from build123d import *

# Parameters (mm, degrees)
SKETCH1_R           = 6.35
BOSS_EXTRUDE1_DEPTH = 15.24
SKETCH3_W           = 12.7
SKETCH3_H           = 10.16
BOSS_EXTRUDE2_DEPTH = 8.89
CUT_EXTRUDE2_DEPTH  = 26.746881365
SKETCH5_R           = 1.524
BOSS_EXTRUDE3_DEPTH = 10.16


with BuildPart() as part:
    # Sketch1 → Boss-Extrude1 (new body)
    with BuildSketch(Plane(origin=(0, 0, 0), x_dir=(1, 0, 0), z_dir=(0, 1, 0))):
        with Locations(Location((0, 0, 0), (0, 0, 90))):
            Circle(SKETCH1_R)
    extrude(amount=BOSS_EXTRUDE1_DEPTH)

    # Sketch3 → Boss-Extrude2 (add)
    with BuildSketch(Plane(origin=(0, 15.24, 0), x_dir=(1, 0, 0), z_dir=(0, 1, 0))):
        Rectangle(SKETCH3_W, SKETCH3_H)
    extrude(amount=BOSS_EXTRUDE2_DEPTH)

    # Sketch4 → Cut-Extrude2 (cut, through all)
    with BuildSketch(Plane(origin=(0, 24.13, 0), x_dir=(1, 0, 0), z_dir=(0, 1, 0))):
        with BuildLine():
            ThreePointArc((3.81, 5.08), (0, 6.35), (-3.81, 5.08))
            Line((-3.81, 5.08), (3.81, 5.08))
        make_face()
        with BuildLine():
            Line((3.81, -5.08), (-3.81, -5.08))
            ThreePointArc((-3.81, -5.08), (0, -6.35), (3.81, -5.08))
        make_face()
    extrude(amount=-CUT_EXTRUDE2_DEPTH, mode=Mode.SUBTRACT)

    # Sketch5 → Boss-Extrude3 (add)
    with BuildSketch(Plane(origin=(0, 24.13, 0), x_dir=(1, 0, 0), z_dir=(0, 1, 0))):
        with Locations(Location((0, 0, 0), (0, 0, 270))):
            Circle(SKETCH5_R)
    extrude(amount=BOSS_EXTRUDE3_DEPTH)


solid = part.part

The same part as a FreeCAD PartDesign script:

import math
import FreeCAD as App
import Part
import Sketcher
Q = App.Units.Quantity

doc = App.newDocument("Part")
body = doc.addObject("PartDesign::Body", "Body")

sketch1 = body.newObject("Sketcher::SketchObject", "Sketch")
sketch1.AttachmentSupport = (doc.getObject("XZ_Plane"), [""])
sketch1.MapMode = "FlatFace"
sketch1.addGeometry(Part.Circle(App.Vector(0, 0, 0), App.Vector(0, 0, 1), 6), False)
sketch1.addConstraint(Sketcher.Constraint("Coincident", 0, 3, -1, 1))
sketch1.addConstraint(Sketcher.Constraint("Diameter", 0, Q("0.5 in")))
pad1 = body.newObject("PartDesign::Pad", "Pad")
pad1.Profile = sketch1
pad1.Length = Q("0.6 in")
pad1.Reversed = True

sketch2 = body.newObject("Sketcher::SketchObject", "Sketch001")
sketch2.AttachmentSupport = (doc.getObject("XZ_Plane"), [""])
sketch2.MapMode = "FlatFace"
sketch2.AttachmentOffset = App.Placement(App.Vector(0, 0, -0.6 * 25.4), App.Rotation())
sketch2.addGeometry(Part.LineSegment(App.Vector(-6, -5, 0), App.Vector(-6, 5, 0)), False)
sketch2.addGeometry(Part.LineSegment(App.Vector(-6, 5, 0), App.Vector(6, 5, 0)), False)
sketch2.addGeometry(Part.LineSegment(App.Vector(6, 5, 0), App.Vector(6, -5, 0)), False)
sketch2.addGeometry(Part.LineSegment(App.Vector(6, -5, 0), App.Vector(-6, -5, 0)), False)
sketch2.addConstraint(Sketcher.Constraint("Coincident", 0, 2, 1, 1))
sketch2.addConstraint(Sketcher.Constraint("Coincident", 1, 2, 2, 1))
sketch2.addConstraint(Sketcher.Constraint("Coincident", 2, 2, 3, 1))
sketch2.addConstraint(Sketcher.Constraint("Coincident", 3, 2, 0, 1))
sketch2.addConstraint(Sketcher.Constraint("Vertical", 0))
sketch2.addConstraint(Sketcher.Constraint("Horizontal", 1))
sketch2.addConstraint(Sketcher.Constraint("Vertical", 2))
sketch2.addConstraint(Sketcher.Constraint("Horizontal", 3))
sketch2.addConstraint(Sketcher.Constraint("Symmetric", 0, 2, 2, 2, -1, 1))
sketch2.addConstraint(Sketcher.Constraint("DistanceX", 1, 1, 1, 2, Q("0.5 in")))
sketch2.addConstraint(Sketcher.Constraint("DistanceY", 0, 1, 0, 2, Q("0.4 in")))
pad2 = body.newObject("PartDesign::Pad", "Pad001")
pad2.Profile = sketch2
pad2.Length = Q("0.35 in")
pad2.Reversed = True

sketch3 = body.newObject("Sketcher::SketchObject", "Sketch002")
sketch3.AttachmentSupport = (doc.getObject("XZ_Plane"), [""])
sketch3.MapMode = "FlatFace"
sketch3.AttachmentOffset = App.Placement(App.Vector(0, 0, -0.95 * 25.4), App.Rotation())
sketch3.addGeometry(Part.ArcOfCircle(Part.Circle(App.Vector(0, 0, 0), App.Vector(0, 0, 1), 6), math.radians(-127), math.radians(-53)), False)
sketch3.addGeometry(Part.LineSegment(App.Vector(-4, -5, 0), App.Vector(4, -5, 0)), False)
sketch3.addGeometry(Part.LineSegment(App.Vector(4, 5, 0), App.Vector(-4, 5, 0)), False)
sketch3.addGeometry(Part.ArcOfCircle(Part.Circle(App.Vector(0, 0, 0), App.Vector(0, 0, 1), 6), math.radians(53), math.radians(127)), False)
sketch3.addConstraint(Sketcher.Constraint("Coincident", 0, 1, 1, 1))
sketch3.addConstraint(Sketcher.Constraint("Coincident", 1, 2, 0, 2))
sketch3.addConstraint(Sketcher.Constraint("Coincident", 2, 1, 3, 1))
sketch3.addConstraint(Sketcher.Constraint("Coincident", 3, 2, 2, 2))
sketch3.addConstraint(Sketcher.Constraint("Horizontal", 1))
sketch3.addConstraint(Sketcher.Constraint("Horizontal", 2))
sketch3.addConstraint(Sketcher.Constraint("Coincident", 0, 3, -1, 1))
sketch3.addConstraint(Sketcher.Constraint("Coincident", 3, 3, -1, 1))
sketch3.addConstraint(Sketcher.Constraint("Equal", 0, 3))
sketch3.addConstraint(Sketcher.Constraint("Vertical", 1, 2, 2, 1))
sketch3.addConstraint(Sketcher.Constraint("Radius", 0, Q("0.25 in")))
sketch3.addConstraint(Sketcher.Constraint("DistanceX", 1, 1, 1, 2, Q("0.3 in")))
pocket1 = body.newObject("PartDesign::Pocket", "Pocket")
pocket1.Profile = sketch3
pocket1.Type = "ThroughAll"
pocket1.Reversed = True

sketch4 = body.newObject("Sketcher::SketchObject", "Sketch003")
sketch4.AttachmentSupport = (doc.getObject("XZ_Plane"), [""])
sketch4.MapMode = "FlatFace"
sketch4.AttachmentOffset = App.Placement(App.Vector(0, 0, -0.95 * 25.4), App.Rotation())
sketch4.addGeometry(Part.Circle(App.Vector(0, 0, 0), App.Vector(0, 0, 1), 1.5), False)
sketch4.addConstraint(Sketcher.Constraint("Coincident", 0, 3, -1, 1))
sketch4.addConstraint(Sketcher.Constraint("Diameter", 0, Q("0.12 in")))
pad3 = body.newObject("PartDesign::Pad", "Pad002")
pad3.Profile = sketch4
pad3.Length = Q("0.4 in")
pad3.Reversed = True

doc.recompute()
